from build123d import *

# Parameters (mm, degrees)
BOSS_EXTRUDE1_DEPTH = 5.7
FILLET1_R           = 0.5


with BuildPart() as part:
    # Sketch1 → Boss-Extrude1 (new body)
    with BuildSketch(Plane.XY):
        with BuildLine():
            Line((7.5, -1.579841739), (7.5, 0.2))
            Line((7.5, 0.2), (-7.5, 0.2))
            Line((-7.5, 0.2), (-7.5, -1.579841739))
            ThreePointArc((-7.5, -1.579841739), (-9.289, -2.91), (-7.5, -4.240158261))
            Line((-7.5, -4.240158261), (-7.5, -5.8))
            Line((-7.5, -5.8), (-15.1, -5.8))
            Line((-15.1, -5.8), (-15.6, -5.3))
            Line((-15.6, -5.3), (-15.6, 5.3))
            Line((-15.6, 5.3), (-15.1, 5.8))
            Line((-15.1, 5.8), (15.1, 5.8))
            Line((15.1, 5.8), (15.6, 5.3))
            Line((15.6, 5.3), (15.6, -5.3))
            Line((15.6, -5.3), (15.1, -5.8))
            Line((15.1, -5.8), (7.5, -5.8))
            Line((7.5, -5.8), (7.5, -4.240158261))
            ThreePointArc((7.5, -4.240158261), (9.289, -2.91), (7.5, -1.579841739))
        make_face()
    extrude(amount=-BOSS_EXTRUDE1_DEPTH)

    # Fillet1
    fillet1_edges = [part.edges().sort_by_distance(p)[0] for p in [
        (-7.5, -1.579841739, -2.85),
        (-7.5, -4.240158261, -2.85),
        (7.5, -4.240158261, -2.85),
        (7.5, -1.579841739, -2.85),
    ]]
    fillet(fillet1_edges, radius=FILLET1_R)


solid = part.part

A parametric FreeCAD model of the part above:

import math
import FreeCAD as App
import Part
import Sketcher
Q = App.Units.Quantity


def edges_at(feature, points):
    """Names of the edges that pass closest to the given points."""
    edges = feature.Shape.Edges
    near = lambda p: min(range(len(edges)), key=lambda i: edges[i].distToShape(Part.Vertex(*p))[0])
    return sorted({f"Edge{near(p) + 1}" for p in points})

doc = App.newDocument("Part")
body = doc.addObject("PartDesign::Body", "Body")

sketch1 = body.newObject("Sketcher::SketchObject", "Sketch")
sketch1.AttachmentSupport = (doc.getObject("XY_Plane"), [""])
sketch1.MapMode = "FlatFace"
sketch1.addGeometry([
    Part.LineSegment(App.Vector(7.5, 0.2, 0), App.Vector(7.5, -1.579842, 0)),
    Part.ArcOfCircle(Part.Circle(App.Vector(7.9, -2.91, 0), App.Vector(0, 0, 1), 1.389), math.radians(-106.736878), math.radians(106.736878)),
    Part.LineSegment(App.Vector(7.5, -4.240158, 0), App.Vector(7.5, -5.8, 0)),
    Part.LineSegment(App.Vector(7.5, -5.8, 0), App.Vector(15.1, -5.8, 0)),
    Part.LineSegment(App.Vector(15.1, -5.8, 0), App.Vector(15.6, -5.3, 0)),
    Part.LineSegment(App.Vector(15.6, -5.3, 0), App.Vector(15.6, 5.3, 0)),
    Part.LineSegment(App.Vector(15.6, 5.3, 0), App.Vector(15.1, 5.8, 0)),
    Part.LineSegment(App.Vector(15.1, 5.8, 0), App.Vector(-15.1, 5.8, 0)),
    Part.LineSegment(App.Vector(-15.1, 5.8, 0), App.Vector(-15.6, 5.3, 0)),
    Part.LineSegment(App.Vector(-15.6, 5.3, 0), App.Vector(-15.6, -5.3, 0)),
    Part.LineSegment(App.Vector(-15.6, -5.3, 0), App.Vector(-15.1, -5.8, 0)),
    Part.LineSegment(App.Vector(-15.1, -5.8, 0), App.Vector(-7.5, -5.8, 0)),
    Part.LineSegment(App.Vector(-7.5, -5.8, 0), App.Vector(-7.5, -4.240158, 0)),
    Part.ArcOfCircle(Part.Circle(App.Vector(-7.9, -2.91, 0), App.Vector(0, 0, 1), 1.389), math.radians(73.263122), math.radians(286.736878)),
    Part.LineSegment(App.Vector(-7.5, -1.579842, 0), App.Vector(-7.5, 0.2, 0)),
    Part.LineSegment(App.Vector(-7.5, 0.2, 0), App.Vector(7.5, 0.2, 0)),
], False)
sketch1.addConstraint([
    Sketcher.Constraint("Coincident", 0, 2, 1, 2),
    Sketcher.Constraint("Coincident", 1, 1, 2, 1),
    Sketcher.Constraint("Coincident", 2, 2, 3, 1),
    Sketcher.Constraint("Coincident", 3, 2, 4, 1),
    Sketcher.Constraint("Coincident", 4, 2, 5, 1),
    Sketcher.Constraint("Coincident", 5, 2, 6, 1),
    Sketcher.Constraint("Coincident", 6, 2, 7, 1),
    Sketcher.Constraint("Coincident", 7, 2, 8, 1),
    Sketcher.Constraint("Coincident", 8, 2, 9, 1),
    Sketcher.Constraint("Coincident", 9, 2, 10, 1),
    Sketcher.Constraint("Coincident", 10, 2, 11, 1),
    Sketcher.Constraint("Coincident", 11, 2, 12, 1),
    Sketcher.Constraint("Coincident", 12, 2, 13, 2),
    Sketcher.Constraint("Coincident", 13, 1, 14, 1),
    Sketcher.Constraint("Coincident", 14, 2, 15, 1),
    Sketcher.Constraint("Coincident", 15, 2, 0, 1),
    Sketcher.Constraint("Vertical", 0),
    Sketcher.Constraint("Vertical", 2),
    Sketcher.Constraint("Horizontal", 3),
    Sketcher.Constraint("Vertical", 5),
    Sketcher.Constraint("Horizontal", 7),
    Sketcher.Constraint("Vertical", 9),
    Sketcher.Constraint("Horizontal", 11),
    Sketcher.Constraint("Vertical", 12),
    Sketcher.Constraint("Vertical", 14),
    Sketcher.Constraint("Horizontal", 15),
    Sketcher.Constraint("Equal", 1, 13),
    Sketcher.Constraint("Symmetric", 3, 2, 7, 2, -1, 1),
    Sketcher.Constraint("Symmetric", 4, 2, 8, 2, -1, 1),
    Sketcher.Constraint("Symmetric", 6, 2, 10, 2, -1, 1),
    Sketcher.Constraint("Symmetric", 1, 3, 13, 3, -2),
    Sketcher.Constraint("Perpendicular", 4, 6),
    Sketcher.Constraint("Perpendicular", 8, 10),
    Sketcher.Constraint("Horizontal", 5, 2, 8, 2),
    Sketcher.Constraint("Horizontal", 1, 1, 12, 2),
    Sketcher.Constraint("Horizontal", 0, 2, 13, 1),
    Sketcher.Constraint("Vertical", 0, 2, 1, 1),
    Sketcher.Constraint("Vertical", 3, 2, 6, 2),
    Sketcher.Constraint("DistanceX", 15, 1, 15, 2, Q("15 mm")),
    Sketcher.Constraint("DistanceX", 3, 1, 3, 2, Q("7.6 mm")),
    Sketcher.Constraint("DistanceY", 5, 1, 5, 2, Q("10.6 mm")),
    Sketcher.Constraint("Radius", 1, Q("1.389 mm")),
    Sketcher.Constraint("DistanceX", 13, 3, 3, 2, Q("23 mm")),
    Sketcher.Constraint("DistanceY", 11, 2, 14, 2, Q("6 mm")),
    Sketcher.Constraint("DistanceY", 2, 2, -1, 1, Q("5.8 mm")),
    Sketcher.Constraint("DistanceY", 1, 3, -1, 1, Q("2.91 mm")),
])
pad1 = body.newObject("PartDesign::Pad", "Pad")
pad1.Profile = sketch1
pad1.Length = 5.7
pad1.Reversed = True
doc.recompute()

fillet = body.newObject("PartDesign::Fillet", "Fillet")
fillet.Base = (pad1, edges_at(pad1, [
    (-7.5, -1.58, -2.85),
    (-7.5, -4.24, -2.85),
    (7.5, -4.24, -2.85),
    (7.5, -1.58, -2.85),
]))
fillet.Radius = 0.5

doc.recompute()
